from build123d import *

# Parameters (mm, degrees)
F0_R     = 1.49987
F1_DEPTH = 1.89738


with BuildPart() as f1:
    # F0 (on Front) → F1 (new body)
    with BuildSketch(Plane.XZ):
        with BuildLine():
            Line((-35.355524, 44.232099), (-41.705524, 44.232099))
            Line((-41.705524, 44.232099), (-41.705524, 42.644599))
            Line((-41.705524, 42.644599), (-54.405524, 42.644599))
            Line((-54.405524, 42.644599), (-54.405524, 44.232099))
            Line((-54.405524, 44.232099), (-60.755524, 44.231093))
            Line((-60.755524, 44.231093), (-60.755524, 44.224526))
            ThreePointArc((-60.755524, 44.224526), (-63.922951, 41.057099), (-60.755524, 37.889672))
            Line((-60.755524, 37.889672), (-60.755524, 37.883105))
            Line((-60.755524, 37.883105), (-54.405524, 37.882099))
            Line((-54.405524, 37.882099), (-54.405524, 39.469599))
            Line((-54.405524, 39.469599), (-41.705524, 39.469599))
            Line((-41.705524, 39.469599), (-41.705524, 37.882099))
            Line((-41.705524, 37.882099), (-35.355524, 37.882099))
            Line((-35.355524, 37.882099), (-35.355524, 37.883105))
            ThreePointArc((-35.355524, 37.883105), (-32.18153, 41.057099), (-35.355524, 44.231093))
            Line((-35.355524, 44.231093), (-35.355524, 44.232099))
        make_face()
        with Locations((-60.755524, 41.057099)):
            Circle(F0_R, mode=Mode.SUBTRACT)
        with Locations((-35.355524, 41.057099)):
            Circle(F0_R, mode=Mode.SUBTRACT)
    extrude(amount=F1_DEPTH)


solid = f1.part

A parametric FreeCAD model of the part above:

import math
import FreeCAD as App
import Part
import Sketcher
from FreeCAD import Vector
Q = App.Units.Quantity

doc = App.newDocument("Part")
body = doc.addObject("PartDesign::Body", "Body")

# Sketch on XZ plane
sketch1 = doc.addObject("Sketcher::SketchObject", "Sketch")
body.addObject(sketch1)
sketch1.AttachmentSupport = (doc.XZ_Plane, [""])
sketch1.MapMode = "FlatFace"
sketch1.addGeometry(Part.LineSegment(Vector(-35.355524, 44.232099, 0), Vector(-41.705524, 44.232099, 0)), False)
sketch1.addGeometry(Part.LineSegment(Vector(-41.705524, 44.232099, 0), Vector(-41.705524, 42.644599, 0)), False)
sketch1.addGeometry(Part.LineSegment(Vector(-41.705524, 42.644599, 0), Vector(-54.405524, 42.644599, 0)), False)
sketch1.addGeometry(Part.LineSegment(Vector(-54.405524, 42.644599, 0), Vector(-54.405524, 44.232099, 0)), False)
sketch1.addGeometry(Part.LineSegment(Vector(-54.405524, 44.232099, 0), Vector(-60.755524, 44.231093, 0)), False)
sketch1.addGeometry(Part.LineSegment(Vector(-60.755524, 44.231093, 0), Vector(-60.755524, 44.224526, 0)), False)
sketch1.addGeometry(Part.ArcOfCircle(Part.Circle(Vector(-60.755524, 41.057099, 0), Vector(0, 0, 1), 3.167427), math.radians(90), math.radians(270)), False)
sketch1.addGeometry(Part.LineSegment(Vector(-60.755524, 37.889672, 0), Vector(-60.755524, 37.883105, 0)), False)
sketch1.addGeometry(Part.LineSegment(Vector(-60.755524, 37.883105, 0), Vector(-54.405524, 37.882099, 0)), False)
sketch1.addGeometry(Part.LineSegment(Vector(-54.405524, 37.882099, 0), Vector(-54.405524, 39.469599, 0)), False)
sketch1.addGeometry(Part.LineSegment(Vector(-54.405524, 39.469599, 0), Vector(-41.705524, 39.469599, 0)), False)
sketch1.addGeometry(Part.LineSegment(Vector(-41.705524, 39.469599, 0), Vector(-41.705524, 37.882099, 0)), False)
sketch1.addGeometry(Part.LineSegment(Vector(-41.705524, 37.882099, 0), Vector(-35.355524, 37.882099, 0)), False)
sketch1.addGeometry(Part.LineSegment(Vector(-35.355524, 37.882099, 0), Vector(-35.355524, 37.883105, 0)), False)
sketch1.addGeometry(Part.ArcOfCircle(Part.Circle(Vector(-35.355524, 41.057099, 0), Vector(0, 0, 1), 3.173994), math.radians(-90), math.radians(90)), False)
sketch1.addGeometry(Part.LineSegment(Vector(-35.355524, 44.231093, 0), Vector(-35.355524, 44.232099, 0)), False)
sketch1.addGeometry(Part.Circle(Vector(-60.755524, 41.057099, 0), Vector(0, 0, 1), 1.49987), False)
sketch1.addGeometry(Part.Circle(Vector(-35.355524, 41.057099, 0), Vector(0, 0, 1), 1.49987), False)
sketch1.addConstraint(Sketcher.Constraint("Coincident", 0, 2, 1, 1))
sketch1.addConstraint(Sketcher.Constraint("Coincident", 1, 2, 2, 1))
sketch1.addConstraint(Sketcher.Constraint("Coincident", 2, 2, 3, 1))
sketch1.addConstraint(Sketcher.Constraint("Coincident", 3, 2, 4, 1))
sketch1.addConstraint(Sketcher.Constraint("Coincident", 4, 2, 5, 1))
sketch1.addConstraint(Sketcher.Constraint("Coincident", 5, 2, 6, 1))
sketch1.addConstraint(Sketcher.Constraint("Coincident", 6, 2, 7, 1))
sketch1.addConstraint(Sketcher.Constraint("Coincident", 7, 2, 8, 1))
sketch1.addConstraint(Sketcher.Constraint("Coincident", 8, 2, 9, 1))
sketch1.addConstraint(Sketcher.Constraint("Coincident", 9, 2, 10, 1))
sketch1.addConstraint(Sketcher.Constraint("Coincident", 10, 2, 11, 1))
sketch1.addConstraint(Sketcher.Constraint("Coincident", 11, 2, 12, 1))
sketch1.addConstraint(Sketcher.Constraint("Coincident", 12, 2, 13, 1))
sketch1.addConstraint(Sketcher.Constraint("Coincident", 13, 2, 14, 1))
sketch1.addConstraint(Sketcher.Constraint("Coincident", 14, 2, 15, 1))
sketch1.addConstraint(Sketcher.Constraint("Coincident", 15, 2, 0, 1))
sketch1.addConstraint(Sketcher.Constraint("Horizontal", 0))
sketch1.addConstraint(Sketcher.Constraint("Vertical", 1))
sketch1.addConstraint(Sketcher.Constraint("Horizontal", 2))
sketch1.addConstraint(Sketcher.Constraint("Vertical", 3))
sketch1.addConstraint(Sketcher.Constraint("Vertical", 5))
sketch1.addConstraint(Sketcher.Constraint("Vertical", 7))
sketch1.addConstraint(Sketcher.Constraint("Vertical", 9))
sketch1.addConstraint(Sketcher.Constraint("Horizontal", 10))
sketch1.addConstraint(Sketcher.Constraint("Vertical", 11))
sketch1.addConstraint(Sketcher.Constraint("Horizontal", 12))
sketch1.addConstraint(Sketcher.Constraint("Vertical", 13))
sketch1.addConstraint(Sketcher.Constraint("Vertical", 15))
sketch1.addConstraint(Sketcher.Constraint("Coincident", 16, 3, 6, 3))
sketch1.addConstraint(Sketcher.Constraint("Coincident", 17, 3, 14, 3))
sketch1.addConstraint(Sketcher.Constraint("Equal", 16, 17))
sketch1.addConstraint(Sketcher.Constraint("Horizontal", 6, 3, 14, 3))
sketch1.addConstraint(Sketcher.Constraint("Horizontal", 0, 2, 3, 2))
sketch1.addConstraint(Sketcher.Constraint("Horizontal", 8, 2, 11, 2))
sketch1.addConstraint(Sketcher.Constraint("Horizontal", 7, 2, 13, 2))
sketch1.addConstraint(Sketcher.Constraint("Horizontal", 4, 2, 14, 2))
sketch1.addConstraint(Sketcher.Constraint("Vertical", 16, 3, 4, 2))
sketch1.addConstraint(Sketcher.Constraint("Vertical", 5, 2, 6, 2))
sketch1.addConstraint(Sketcher.Constraint("Vertical", 3, 2, 8, 2))
sketch1.addConstraint(Sketcher.Constraint("Vertical", 1, 2, 10, 2))
sketch1.addConstraint(Sketcher.Constraint("Vertical", 17, 3, 12, 2))
sketch1.addConstraint(Sketcher.Constraint("Vertical", 13, 2, 14, 2))
sketch1.addConstraint(Sketcher.Constraint("Equal", 3, 9))
sketch1.addConstraint(Sketcher.Constraint("Equal", 13, 15))
sketch1.addConstraint(Sketcher.Constraint("DistanceX", 2, 2, 2, 1, Q("0.5 in")))
sketch1.addConstraint(Sketcher.Constraint("DistanceX", 6, 3, 14, 3, Q("1 in")))
sketch1.addConstraint(Sketcher.Constraint("Diameter", 16, Q("0.1181 in")))
sketch1.addConstraint(Sketcher.Constraint("DistanceX", 0, 2, 0, 1, Q("0.25 in")))
sketch1.addConstraint(Sketcher.Constraint("DistanceY", 1, 2, 1, 1, Q("0.0625 in")))
sketch1.addConstraint(Sketcher.Constraint("DistanceY", 8, 2, 3, 2, Q("0.25 in")))
sketch1.addConstraint(Sketcher.Constraint("Radius", 6, 3.167427))
sketch1.addConstraint(Sketcher.Constraint("Radius", 14, 3.173994))
sketch1.addConstraint(Sketcher.Constraint("DistanceY", -1, 1, 6, 3, 41.057099))
sketch1.addConstraint(Sketcher.Constraint("DistanceX", 6, 3, -1, 1, 60.755524))
pad1 = doc.addObject("PartDesign::Pad", "Pad")
body.addObject(pad1)
pad1.Profile = sketch1
pad1.Length = Q("0.0747 in")

doc.recompute()
